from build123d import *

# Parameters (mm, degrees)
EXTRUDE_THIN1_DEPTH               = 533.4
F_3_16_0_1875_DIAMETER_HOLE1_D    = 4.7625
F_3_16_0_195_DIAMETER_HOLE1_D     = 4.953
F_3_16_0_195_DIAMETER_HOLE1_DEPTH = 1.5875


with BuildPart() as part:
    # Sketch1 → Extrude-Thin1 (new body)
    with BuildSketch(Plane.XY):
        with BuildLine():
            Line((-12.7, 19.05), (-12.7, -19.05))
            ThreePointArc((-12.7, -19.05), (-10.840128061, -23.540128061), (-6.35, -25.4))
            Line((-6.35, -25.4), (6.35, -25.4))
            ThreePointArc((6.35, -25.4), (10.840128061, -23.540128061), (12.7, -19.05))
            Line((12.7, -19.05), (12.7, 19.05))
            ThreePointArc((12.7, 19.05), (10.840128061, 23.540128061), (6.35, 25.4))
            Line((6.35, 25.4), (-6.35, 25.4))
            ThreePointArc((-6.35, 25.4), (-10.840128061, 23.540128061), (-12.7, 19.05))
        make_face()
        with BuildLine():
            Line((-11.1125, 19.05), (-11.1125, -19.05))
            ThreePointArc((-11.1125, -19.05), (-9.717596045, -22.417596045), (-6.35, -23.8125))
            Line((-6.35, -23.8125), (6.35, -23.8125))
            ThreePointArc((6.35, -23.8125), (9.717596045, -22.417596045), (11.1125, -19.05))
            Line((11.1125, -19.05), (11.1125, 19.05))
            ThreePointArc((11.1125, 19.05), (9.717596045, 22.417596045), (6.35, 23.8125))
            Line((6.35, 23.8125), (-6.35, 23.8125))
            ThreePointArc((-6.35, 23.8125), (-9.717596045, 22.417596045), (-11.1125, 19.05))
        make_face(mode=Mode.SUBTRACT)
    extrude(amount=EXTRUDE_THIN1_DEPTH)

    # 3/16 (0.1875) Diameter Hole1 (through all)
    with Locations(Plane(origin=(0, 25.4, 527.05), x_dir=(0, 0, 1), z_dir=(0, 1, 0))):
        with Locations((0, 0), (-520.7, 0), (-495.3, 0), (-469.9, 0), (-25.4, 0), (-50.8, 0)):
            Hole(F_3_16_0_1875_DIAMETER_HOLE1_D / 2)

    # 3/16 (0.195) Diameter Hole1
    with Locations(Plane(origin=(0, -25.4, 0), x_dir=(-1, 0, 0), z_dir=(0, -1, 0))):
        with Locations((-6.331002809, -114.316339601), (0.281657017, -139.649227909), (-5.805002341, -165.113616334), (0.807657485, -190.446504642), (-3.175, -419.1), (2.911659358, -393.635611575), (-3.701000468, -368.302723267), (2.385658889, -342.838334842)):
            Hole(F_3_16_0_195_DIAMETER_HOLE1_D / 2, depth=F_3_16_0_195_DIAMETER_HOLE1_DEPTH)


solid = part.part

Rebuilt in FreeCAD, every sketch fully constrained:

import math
import FreeCAD as App
import Part
import Sketcher

V = App.Vector
Q = App.Units.Quantity

doc = App.newDocument("Part")
body = doc.addObject("PartDesign::Body", "Body")

sketch1 = doc.addObject("Sketcher::SketchObject", "Sketch")
body.addObject(sketch1)
sketch1.AttachmentSupport = (doc.XY_Plane, [""])
sketch1.MapMode = "FlatFace"
sketch1.addGeometry(Part.LineSegment(V(-12.7, 19.05, 0), V(-12.7, -19.05, 0)), False)
sketch1.addGeometry(Part.ArcOfCircle(Part.Circle(V(-6.35, -19.05, 0), V(0, 0, 1), 6.35), math.radians(180), math.radians(270)), False)
sketch1.addGeometry(Part.LineSegment(V(-6.35, -25.4, 0), V(6.35, -25.4, 0)), False)
sketch1.addGeometry(Part.ArcOfCircle(Part.Circle(V(6.35, -19.05, 0), V(0, 0, 1), 6.35), math.radians(-90), math.radians(0)), False)
sketch1.addGeometry(Part.LineSegment(V(12.7, -19.05, 0), V(12.7, 19.05, 0)), False)
sketch1.addGeometry(Part.ArcOfCircle(Part.Circle(V(6.35, 19.05, 0), V(0, 0, 1), 6.35), math.radians(0), math.radians(90)), False)
sketch1.addGeometry(Part.LineSegment(V(6.35, 25.4, 0), V(-6.35, 25.4, 0)), False)
sketch1.addGeometry(Part.ArcOfCircle(Part.Circle(V(-6.35, 19.05, 0), V(0, 0, 1), 6.35), math.radians(90), math.radians(180)), False)
sketch1.addGeometry(Part.LineSegment(V(-11.1125, -19.05, 0), V(-11.1125, 19.05, 0)), False)
sketch1.addGeometry(Part.ArcOfCircle(Part.Circle(V(-6.35, 19.05, 0), V(0, 0, 1), 4.7625), math.radians(90), math.radians(180)), False)
sketch1.addGeometry(Part.LineSegment(V(-6.35, 23.8125, 0), V(6.35, 23.8125, 0)), False)
sketch1.addGeometry(Part.ArcOfCircle(Part.Circle(V(6.35, 19.05, 0), V(0, 0, 1), 4.7625), math.radians(0), math.radians(90)), False)
sketch1.addGeometry(Part.LineSegment(V(11.1125, 19.05, 0), V(11.1125, -19.05, 0)), False)
sketch1.addGeometry(Part.ArcOfCircle(Part.Circle(V(6.35, -19.05, 0), V(0, 0, 1), 4.7625), math.radians(-90), math.radians(0)), False)
sketch1.addGeometry(Part.LineSegment(V(6.35, -23.8125, 0), V(-6.35, -23.8125, 0)), False)
sketch1.addGeometry(Part.ArcOfCircle(Part.Circle(V(-6.35, -19.05, 0), V(0, 0, 1), 4.7625), math.radians(-180), math.radians(-90)), False)
sketch1.addConstraint(Sketcher.Constraint("Tangent", 0, 2, 1, 1))
sketch1.addConstraint(Sketcher.Constraint("Tangent", 1, 2, 2, 1))
sketch1.addConstraint(Sketcher.Constraint("Tangent", 2, 2, 3, 1))
sketch1.addConstraint(Sketcher.Constraint("Tangent", 3, 2, 4, 1))
sketch1.addConstraint(Sketcher.Constraint("Tangent", 4, 2, 5, 1))
sketch1.addConstraint(Sketcher.Constraint("Tangent", 5, 2, 6, 1))
sketch1.addConstraint(Sketcher.Constraint("Tangent", 6, 2, 7, 1))
sketch1.addConstraint(Sketcher.Constraint("Tangent", 7, 2, 0, 1))
sketch1.addConstraint(Sketcher.Constraint("Tangent", 8, 2, 9, 2))
sketch1.addConstraint(Sketcher.Constraint("Tangent", 9, 1, 10, 1))
sketch1.addConstraint(Sketcher.Constraint("Tangent", 10, 2, 11, 2))
sketch1.addConstraint(Sketcher.Constraint("Tangent", 11, 1, 12, 1))
sketch1.addConstraint(Sketcher.Constraint("Tangent", 12, 2, 13, 2))
sketch1.addConstraint(Sketcher.Constraint("Tangent", 13, 1, 14, 1))
sketch1.addConstraint(Sketcher.Constraint("Tangent", 14, 2, 15, 2))
sketch1.addConstraint(Sketcher.Constraint("Tangent", 15, 1, 8, 1))
sketch1.addConstraint(Sketcher.Constraint("Vertical", 0))
sketch1.addConstraint(Sketcher.Constraint("Horizontal", 2))
sketch1.addConstraint(Sketcher.Constraint("Vertical", 4))
sketch1.addConstraint(Sketcher.Constraint("Horizontal", 6))
sketch1.addConstraint(Sketcher.Constraint("Vertical", 8))
sketch1.addConstraint(Sketcher.Constraint("Horizontal", 10))
sketch1.addConstraint(Sketcher.Constraint("Vertical", 12))
sketch1.addConstraint(Sketcher.Constraint("Horizontal", 14))
sketch1.addConstraint(Sketcher.Constraint("Coincident", 9, 3, 7, 3))
sketch1.addConstraint(Sketcher.Constraint("Coincident", 11, 3, 5, 3))
sketch1.addConstraint(Sketcher.Constraint("Coincident", 13, 3, 3, 3))
sketch1.addConstraint(Sketcher.Constraint("Equal", 1, 3))
sketch1.addConstraint(Sketcher.Constraint("Equal", 3, 5))
sketch1.addConstraint(Sketcher.Constraint("Equal", 5, 7))
sketch1.addConstraint(Sketcher.Constraint("Equal", 13, 15))
sketch1.addConstraint(Sketcher.Constraint("Symmetric", 1, 3, 5, 3, -1, 1))
sketch1.addConstraint(Sketcher.Constraint("Radius", 1, Q("0.25 in")))
sketch1.addConstraint(Sketcher.Constraint("DistanceX", 2, 1, 2, 2, Q("0.5 in")))
sketch1.addConstraint(Sketcher.Constraint("DistanceY", 0, 2, 0, 1, Q("1.5 in")))
sketch1.addConstraint(Sketcher.Constraint("Radius", 9, Q("0.1875 in")))
pad1 = doc.addObject("PartDesign::Pad", "Pad")
body.addObject(pad1)
pad1.Profile = sketch1
pad1.Length = Q("21 in")

sketch2 = doc.addObject("Sketcher::SketchObject", "Sketch001")
body.addObject(sketch2)
sketch2.AttachmentSupport = (doc.XZ_Plane, [""])
sketch2.MapMode = "FlatFace"
sketch2.AttachmentOffset = App.Placement(V(0, 0, -1 * 25.4), App.Rotation())
sketch2.addGeometry(Part.Circle(V(0, 527.05, 0), V(0, 0, 1), 2.38125), False)
sketch2.addGeometry(Part.Circle(V(0, 6.35, 0), V(0, 0, 1), 2.38125), False)
sketch2.addGeometry(Part.Circle(V(0, 31.75, 0), V(0, 0, 1), 2.38125), False)
sketch2.addGeometry(Part.Circle(V(0, 57.15, 0), V(0, 0, 1), 2.38125), False)
sketch2.addGeometry(Part.Circle(V(0, 501.65, 0), V(0, 0, 1), 2.38125), False)
sketch2.addGeometry(Part.Circle(V(0, 476.25, 0), V(0, 0, 1), 2.38125), False)
sketch2.addConstraint(Sketcher.Constraint("Equal", 0, 1))
sketch2.addConstraint(Sketcher.Constraint("Equal", 1, 2))
sketch2.addConstraint(Sketcher.Constraint("Equal", 2, 3))
sketch2.addConstraint(Sketcher.Constraint("Equal", 3, 4))
sketch2.addConstraint(Sketcher.Constraint("Equal", 4, 5))
sketch2.addConstraint(Sketcher.Constraint("PointOnObject", 0, 3, -2))
sketch2.addConstraint(Sketcher.Constraint("PointOnObject", 1, 3, -2))
sketch2.addConstraint(Sketcher.Constraint("PointOnObject", 2, 3, -2))
sketch2.addConstraint(Sketcher.Constraint("PointOnObject", 3, 3, -2))
sketch2.addConstraint(Sketcher.Constraint("PointOnObject", 4, 3, -2))
sketch2.addConstraint(Sketcher.Constraint("PointOnObject", 5, 3, -2))
sketch2.addConstraint(Sketcher.Constraint("Diameter", 0, Q("0.1875 in")))
sketch2.addConstraint(Sketcher.Constraint("DistanceY", 1, 3, 2, 3, Q("1 in")))
sketch2.addConstraint(Sketcher.Constraint("DistanceY", 2, 3, 3, 3, Q("1 in")))
sketch2.addConstraint(Sketcher.Constraint("DistanceY", 4, 3, 0, 3, Q("1 in")))
sketch2.addConstraint(Sketcher.Constraint("DistanceY", 5, 3, 4, 3, Q("1 in")))
sketch2.addConstraint(Sketcher.Constraint("DistanceY", 1, 3, 0, 3, Q("20.5 in")))
sketch2.addConstraint(Sketcher.Constraint("DistanceY", -1, 1, 0, 3, Q("20.75 in")))
doc.recompute()
hole = doc.addObject("PartDesign::Hole", "Hole")
body.addObject(hole)
hole.Profile = sketch2
hole.ThreadType = "None"
hole.Diameter = Q("0.1875 in")
hole.DepthType = "ThroughAll"
hole.Reversed = True

sketch3 = doc.addObject("Sketcher::SketchObject", "Sketch002")
body.addObject(sketch3)
sketch3.AttachmentSupport = (doc.XZ_Plane, [""])
sketch3.MapMode = "FlatFace"
sketch3.AttachmentOffset = App.Placement(V(0, 0, 1 * 25.4), App.Rotation())
sketch3.addGeometry(Part.Circle(V(6.331003, 114.31634, 0), V(0, 0, 1), 2.4765), False)
sketch3.addGeometry(Part.Circle(V(-0.281657, 139.649228, 0), V(0, 0, 1), 2.4765), False)
sketch3.addGeometry(Part.Circle(V(5.805002, 165.113616, 0), V(0, 0, 1), 2.4765), False)
sketch3.addGeometry(Part.Circle(V(-0.807657, 190.446505, 0), V(0, 0, 1), 2.4765), False)
sketch3.addGeometry(Part.Circle(V(3.175, 419.1, 0), V(0, 0, 1), 2.4765), False)
sketch3.addGeometry(Part.Circle(V(-2.911659, 393.635612, 0), V(0, 0, 1), 2.4765), False)
sketch3.addGeometry(Part.Circle(V(3.701, 368.302723, 0), V(0, 0, 1), 2.4765), False)
sketch3.addGeometry(Part.Circle(V(-2.385659, 342.838335, 0), V(0, 0, 1), 2.4765), False)
sketch3.addConstraint(Sketcher.Constraint("Equal", 0, 1))
sketch3.addConstraint(Sketcher.Constraint("Equal", 1, 2))
sketch3.addConstraint(Sketcher.Constraint("Equal", 2, 3))
sketch3.addConstraint(Sketcher.Constraint("Equal", 3, 4))
sketch3.addConstraint(Sketcher.Constraint("Equal", 4, 5))
sketch3.addConstraint(Sketcher.Constraint("Equal", 5, 6))
sketch3.addConstraint(Sketcher.Constraint("Equal", 6, 7))
sketch3.addConstraint(Sketcher.Constraint("Diameter", 0, Q("0.195 in")))
sketch3.addConstraint(Sketcher.Constraint("DistanceY", -1, 1, 4, 3, Q("16.5 in")))
sketch3.addConstraint(Sketcher.Constraint("DistanceX", -1, 1, 4, 3, Q("0.125 in")))
sketch3.addConstraint(Sketcher.Constraint("DistanceX", -1, 1, 6, 3, Q("3.701 mm")))
sketch3.addConstraint(Sketcher.Constraint("DistanceX", 2, 3, 0, 3, Q("0.526 mm")))
sketch3.addConstraint(Sketcher.Constraint("DistanceX", 3, 3, 1, 3, Q("0.526 mm")))
sketch3.addConstraint(Sketcher.Constraint("DistanceX", 5, 3, 3, 3, Q("2.104002 mm")))
sketch3.addConstraint(Sketcher.Constraint("DistanceX", 6, 3, 2, 3, Q("2.104002 mm")))
sketch3.addConstraint(Sketcher.Constraint("DistanceX", 5, 3, 7, 3, Q("0.526 mm")))
sketch3.addConstraint(Sketcher.Constraint("DistanceY", -1, 1, 0, 3, Q("114.31634 mm")))
sketch3.addConstraint(Sketcher.Constraint("DistanceX", 5, 3, -1, 1, Q("2.911659 mm")))
sketch3.addConstraint(Sketcher.Constraint("DistanceY", -1, 1, 5, 3, Q("393.635612 mm")))
sketch3.addConstraint(Sketcher.Constraint("DistanceY", 0, 3, 1, 3, Q("25.332888 mm")))
sketch3.addConstraint(Sketcher.Constraint("DistanceY", 1, 3, 2, 3, Q("25.464388 mm")))
sketch3.addConstraint(Sketcher.Constraint("DistanceY", 2, 3, 3, 3, Q("25.332888 mm")))
sketch3.addConstraint(Sketcher.Constraint("DistanceY", 6, 3, 5, 3, Q("25.332888 mm")))
sketch3.addConstraint(Sketcher.Constraint("DistanceY", 7, 3, 6, 3, Q("25.464388 mm")))
doc.recompute()
hole2 = doc.addObject("PartDesign::Hole", "Hole001")
body.addObject(hole2)
hole2.Profile = sketch3
hole2.ThreadType = "None"
hole2.Diameter = Q("0.195 in")
hole2.DepthType = "Dimension"
hole2.Depth = Q("0.0625 in")
hole2.DrillPoint = "Flat"

doc.recompute()
